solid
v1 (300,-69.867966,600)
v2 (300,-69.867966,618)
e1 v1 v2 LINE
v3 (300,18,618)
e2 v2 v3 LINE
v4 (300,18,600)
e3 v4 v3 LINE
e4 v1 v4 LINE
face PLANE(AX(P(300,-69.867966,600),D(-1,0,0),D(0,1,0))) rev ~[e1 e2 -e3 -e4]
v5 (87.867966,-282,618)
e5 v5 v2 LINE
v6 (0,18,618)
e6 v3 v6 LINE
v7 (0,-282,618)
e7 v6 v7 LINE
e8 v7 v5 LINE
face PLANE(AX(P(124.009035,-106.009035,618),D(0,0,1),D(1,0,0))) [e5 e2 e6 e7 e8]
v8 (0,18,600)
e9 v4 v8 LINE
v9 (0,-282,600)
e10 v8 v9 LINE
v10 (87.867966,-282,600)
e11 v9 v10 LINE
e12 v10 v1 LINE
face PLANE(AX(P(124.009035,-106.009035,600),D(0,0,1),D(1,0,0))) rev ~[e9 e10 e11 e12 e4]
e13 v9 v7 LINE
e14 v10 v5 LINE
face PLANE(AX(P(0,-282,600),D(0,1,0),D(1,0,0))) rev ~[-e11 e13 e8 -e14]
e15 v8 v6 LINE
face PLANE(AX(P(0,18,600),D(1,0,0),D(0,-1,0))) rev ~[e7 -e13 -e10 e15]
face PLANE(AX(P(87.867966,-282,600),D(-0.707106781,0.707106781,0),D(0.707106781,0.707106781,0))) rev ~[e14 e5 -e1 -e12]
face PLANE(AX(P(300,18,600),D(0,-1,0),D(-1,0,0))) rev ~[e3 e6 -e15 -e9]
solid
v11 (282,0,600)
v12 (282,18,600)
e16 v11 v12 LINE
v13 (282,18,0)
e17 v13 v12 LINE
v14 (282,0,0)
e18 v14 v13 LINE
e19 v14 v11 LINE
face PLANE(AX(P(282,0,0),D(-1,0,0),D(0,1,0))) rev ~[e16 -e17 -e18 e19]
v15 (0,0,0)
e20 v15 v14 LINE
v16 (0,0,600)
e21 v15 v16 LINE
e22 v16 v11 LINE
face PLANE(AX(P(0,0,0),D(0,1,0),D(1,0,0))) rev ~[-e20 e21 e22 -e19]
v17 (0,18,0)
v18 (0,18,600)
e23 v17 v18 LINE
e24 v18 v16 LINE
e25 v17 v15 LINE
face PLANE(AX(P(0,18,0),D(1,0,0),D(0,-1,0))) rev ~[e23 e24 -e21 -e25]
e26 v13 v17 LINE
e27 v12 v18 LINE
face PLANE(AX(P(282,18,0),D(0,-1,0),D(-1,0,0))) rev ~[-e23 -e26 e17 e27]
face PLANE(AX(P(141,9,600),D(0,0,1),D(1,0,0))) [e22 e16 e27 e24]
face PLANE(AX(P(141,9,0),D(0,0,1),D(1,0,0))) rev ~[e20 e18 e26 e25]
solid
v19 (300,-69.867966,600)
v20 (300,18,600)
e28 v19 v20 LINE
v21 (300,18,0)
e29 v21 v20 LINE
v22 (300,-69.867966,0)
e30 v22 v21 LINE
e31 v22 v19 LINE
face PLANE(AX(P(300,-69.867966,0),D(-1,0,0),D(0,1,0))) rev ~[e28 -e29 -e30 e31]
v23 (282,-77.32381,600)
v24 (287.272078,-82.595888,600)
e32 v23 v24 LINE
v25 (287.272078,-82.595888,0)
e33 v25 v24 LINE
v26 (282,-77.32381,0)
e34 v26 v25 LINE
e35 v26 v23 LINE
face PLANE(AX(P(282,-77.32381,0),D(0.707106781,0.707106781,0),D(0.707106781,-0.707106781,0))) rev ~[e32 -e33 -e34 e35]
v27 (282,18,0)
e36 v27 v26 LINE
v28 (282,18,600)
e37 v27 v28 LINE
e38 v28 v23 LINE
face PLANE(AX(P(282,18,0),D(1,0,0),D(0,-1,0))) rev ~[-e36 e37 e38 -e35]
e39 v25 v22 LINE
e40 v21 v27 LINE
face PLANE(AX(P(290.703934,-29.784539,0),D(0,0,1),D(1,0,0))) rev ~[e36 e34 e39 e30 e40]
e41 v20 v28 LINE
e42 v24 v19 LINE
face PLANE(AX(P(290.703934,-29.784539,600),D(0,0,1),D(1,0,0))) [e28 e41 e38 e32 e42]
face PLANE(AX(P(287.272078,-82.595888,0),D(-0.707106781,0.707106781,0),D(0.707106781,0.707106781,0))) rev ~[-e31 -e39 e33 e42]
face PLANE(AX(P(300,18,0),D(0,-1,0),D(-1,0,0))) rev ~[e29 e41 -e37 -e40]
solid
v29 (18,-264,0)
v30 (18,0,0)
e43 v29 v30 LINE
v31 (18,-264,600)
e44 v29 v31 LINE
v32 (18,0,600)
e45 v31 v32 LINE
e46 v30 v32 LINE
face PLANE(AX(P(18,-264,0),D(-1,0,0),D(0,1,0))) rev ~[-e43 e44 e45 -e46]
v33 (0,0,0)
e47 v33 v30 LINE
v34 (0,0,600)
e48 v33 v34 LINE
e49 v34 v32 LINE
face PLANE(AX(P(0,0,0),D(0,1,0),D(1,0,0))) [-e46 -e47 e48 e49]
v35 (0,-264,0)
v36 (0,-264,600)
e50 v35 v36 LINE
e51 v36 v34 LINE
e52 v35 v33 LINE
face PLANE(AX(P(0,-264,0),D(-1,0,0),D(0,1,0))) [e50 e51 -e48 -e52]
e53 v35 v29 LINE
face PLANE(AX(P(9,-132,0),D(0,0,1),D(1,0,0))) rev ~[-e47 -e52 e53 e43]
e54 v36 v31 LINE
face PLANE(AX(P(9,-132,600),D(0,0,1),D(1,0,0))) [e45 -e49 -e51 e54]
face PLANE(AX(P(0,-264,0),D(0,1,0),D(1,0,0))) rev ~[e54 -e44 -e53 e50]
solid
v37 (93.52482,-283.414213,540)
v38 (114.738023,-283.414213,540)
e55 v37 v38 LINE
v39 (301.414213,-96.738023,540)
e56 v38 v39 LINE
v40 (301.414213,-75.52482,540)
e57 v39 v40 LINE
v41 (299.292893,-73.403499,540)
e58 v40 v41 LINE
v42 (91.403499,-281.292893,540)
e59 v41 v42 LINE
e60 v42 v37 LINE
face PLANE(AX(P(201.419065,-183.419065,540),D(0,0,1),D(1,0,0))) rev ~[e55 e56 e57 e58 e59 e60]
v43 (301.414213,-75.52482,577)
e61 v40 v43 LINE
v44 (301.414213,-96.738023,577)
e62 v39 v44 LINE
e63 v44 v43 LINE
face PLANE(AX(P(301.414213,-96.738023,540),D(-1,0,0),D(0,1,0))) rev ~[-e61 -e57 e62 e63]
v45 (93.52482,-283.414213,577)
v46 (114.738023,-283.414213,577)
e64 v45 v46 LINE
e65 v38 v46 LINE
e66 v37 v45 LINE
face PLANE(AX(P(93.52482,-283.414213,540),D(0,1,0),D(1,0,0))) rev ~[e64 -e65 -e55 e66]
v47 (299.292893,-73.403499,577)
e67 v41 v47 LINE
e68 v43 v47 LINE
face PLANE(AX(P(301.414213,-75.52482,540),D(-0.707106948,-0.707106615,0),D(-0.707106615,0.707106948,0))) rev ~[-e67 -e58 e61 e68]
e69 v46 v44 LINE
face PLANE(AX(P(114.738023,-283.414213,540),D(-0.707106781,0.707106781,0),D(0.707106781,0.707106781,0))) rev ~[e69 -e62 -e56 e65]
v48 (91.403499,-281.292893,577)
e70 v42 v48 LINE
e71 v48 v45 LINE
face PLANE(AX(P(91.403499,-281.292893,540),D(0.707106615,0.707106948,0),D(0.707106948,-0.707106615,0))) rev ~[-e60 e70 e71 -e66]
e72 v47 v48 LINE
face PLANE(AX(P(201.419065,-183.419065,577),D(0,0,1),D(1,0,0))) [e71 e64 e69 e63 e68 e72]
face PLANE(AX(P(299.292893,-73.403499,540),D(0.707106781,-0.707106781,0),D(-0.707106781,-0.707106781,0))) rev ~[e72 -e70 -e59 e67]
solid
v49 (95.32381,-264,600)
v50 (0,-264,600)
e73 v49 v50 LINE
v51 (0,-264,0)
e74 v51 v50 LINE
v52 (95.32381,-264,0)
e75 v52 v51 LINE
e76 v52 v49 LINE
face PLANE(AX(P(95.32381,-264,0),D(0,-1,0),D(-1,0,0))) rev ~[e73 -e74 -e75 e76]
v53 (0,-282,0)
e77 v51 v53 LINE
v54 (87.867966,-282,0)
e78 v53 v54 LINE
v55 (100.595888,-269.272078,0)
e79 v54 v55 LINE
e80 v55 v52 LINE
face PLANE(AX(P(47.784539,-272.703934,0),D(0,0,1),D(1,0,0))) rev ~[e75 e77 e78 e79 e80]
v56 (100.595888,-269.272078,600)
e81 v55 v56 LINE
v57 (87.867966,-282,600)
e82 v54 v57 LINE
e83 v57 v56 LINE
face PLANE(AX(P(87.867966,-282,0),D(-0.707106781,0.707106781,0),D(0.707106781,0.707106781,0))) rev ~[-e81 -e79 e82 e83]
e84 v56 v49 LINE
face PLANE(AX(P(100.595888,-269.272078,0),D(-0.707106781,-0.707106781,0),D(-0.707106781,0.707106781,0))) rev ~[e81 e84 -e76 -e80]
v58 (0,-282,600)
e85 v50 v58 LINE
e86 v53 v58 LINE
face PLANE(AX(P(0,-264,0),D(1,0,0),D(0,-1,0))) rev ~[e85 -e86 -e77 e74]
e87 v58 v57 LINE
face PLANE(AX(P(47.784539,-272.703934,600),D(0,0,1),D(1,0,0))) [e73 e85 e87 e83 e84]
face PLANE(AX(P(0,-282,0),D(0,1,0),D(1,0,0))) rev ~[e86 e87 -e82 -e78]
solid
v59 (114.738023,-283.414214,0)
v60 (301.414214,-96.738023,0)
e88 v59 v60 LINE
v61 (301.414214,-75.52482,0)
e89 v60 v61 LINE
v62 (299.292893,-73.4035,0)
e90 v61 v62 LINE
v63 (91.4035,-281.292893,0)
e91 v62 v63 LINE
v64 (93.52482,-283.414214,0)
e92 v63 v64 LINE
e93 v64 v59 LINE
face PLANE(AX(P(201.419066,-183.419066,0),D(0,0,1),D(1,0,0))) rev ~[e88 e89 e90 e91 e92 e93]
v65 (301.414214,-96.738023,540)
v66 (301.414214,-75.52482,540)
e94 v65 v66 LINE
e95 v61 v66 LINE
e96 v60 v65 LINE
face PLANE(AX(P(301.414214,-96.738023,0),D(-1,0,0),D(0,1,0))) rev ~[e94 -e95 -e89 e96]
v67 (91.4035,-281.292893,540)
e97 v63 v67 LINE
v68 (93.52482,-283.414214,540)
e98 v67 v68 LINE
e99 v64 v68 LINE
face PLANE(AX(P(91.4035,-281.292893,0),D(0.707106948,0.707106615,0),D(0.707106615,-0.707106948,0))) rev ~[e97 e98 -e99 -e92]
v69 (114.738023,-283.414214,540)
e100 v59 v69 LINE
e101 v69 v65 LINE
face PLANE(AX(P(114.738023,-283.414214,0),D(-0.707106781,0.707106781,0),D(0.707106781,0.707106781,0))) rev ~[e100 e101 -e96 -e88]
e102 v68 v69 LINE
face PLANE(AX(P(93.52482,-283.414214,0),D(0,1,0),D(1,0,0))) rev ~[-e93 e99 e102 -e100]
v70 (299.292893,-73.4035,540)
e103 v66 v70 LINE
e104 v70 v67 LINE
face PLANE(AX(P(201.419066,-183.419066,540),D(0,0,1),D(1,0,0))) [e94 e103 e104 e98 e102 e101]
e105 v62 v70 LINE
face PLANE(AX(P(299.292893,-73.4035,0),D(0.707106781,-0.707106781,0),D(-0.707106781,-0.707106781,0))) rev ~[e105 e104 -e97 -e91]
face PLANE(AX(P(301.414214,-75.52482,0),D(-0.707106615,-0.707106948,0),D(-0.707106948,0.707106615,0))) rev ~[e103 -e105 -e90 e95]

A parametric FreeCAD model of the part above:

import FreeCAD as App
import Part
import Sketcher
from FreeCAD import Vector


def add_polygon(sketch, points):
    """Adds a closed chain of lines whose ends are joined by coincident constraints."""
    first, n = sketch.GeometryCount, len(points)
    for a, b in zip(points, points[1:] + points[:1]):
        sketch.addGeometry(Part.LineSegment(App.Vector(*a, 0), App.Vector(*b, 0)), False)
    for i in range(n):
        sketch.addConstraint(Sketcher.Constraint("Coincident", first + i, 2, first + (i + 1) % n, 1))

doc = App.newDocument("Part")
body = doc.addObject("PartDesign::Body", "Body")

sketch1 = body.newObject("Sketcher::SketchObject", "Sketch")
sketch1.AttachmentSupport = (doc.getObject("XY_Plane"), [""])
sketch1.MapMode = "FlatFace"
add_polygon(sketch1, [(0, 0), (0, -264), (18, -264), (18, 0)])
sketch1.addConstraint([
    Sketcher.Constraint("Vertical", 0),
    Sketcher.Constraint("Horizontal", 1),
    Sketcher.Constraint("Vertical", 2),
    Sketcher.Constraint("Horizontal", 3),
    Sketcher.Constraint("Coincident", 3, 2, -1, 1),
    Sketcher.Constraint("DistanceX", 1, 1, 1, 2, 18.0),
    Sketcher.Constraint("DistanceY", 0, 2, 0, 1, 264.0),
])
pad1 = body.newObject("PartDesign::Pad", "Pad")
pad1.Profile = sketch1
pad1.Length = 600
body2 = doc.addObject("PartDesign::Body", "Body001")

sketch2 = body2.newObject("Sketcher::SketchObject", "Sketch001")
sketch2.AttachmentSupport = (doc.getObject("XY_Plane001"), [""])
sketch2.MapMode = "FlatFace"
add_polygon(sketch2, [(0, 18), (0, 0), (282, 0), (282, 18)])
sketch2.addConstraint([
    Sketcher.Constraint("Vertical", 0),
    Sketcher.Constraint("Horizontal", 1),
    Sketcher.Constraint("Vertical", 2),
    Sketcher.Constraint("Horizontal", 3),
    Sketcher.Constraint("Coincident", 0, 2, -1, 1),
    Sketcher.Constraint("DistanceX", 1, 1, 1, 2, 282.0),
    Sketcher.Constraint("DistanceY", 0, 2, 0, 1, 18.0),
])
pad2 = body2.newObject("PartDesign::Pad", "Pad001")
pad2.Profile = sketch2
pad2.Length = 600
body3 = doc.addObject("PartDesign::Body", "Body002")
body3.AllowCompound = True

sketch3 = body3.newObject("Sketcher::SketchObject", "Sketch002")
sketch3.AttachmentSupport = (doc.getObject("XY_Plane002"), [""])
sketch3.MapMode = "FlatFace"
add_polygon(sketch3, [(0, -264), (0, -282), (88, -282), (101, -269), (95, -264)])
add_polygon(sketch3, [(282, 18), (282, -77), (287, -83), (300, -70), (300, 18)])
sketch3.addConstraint([
    Sketcher.Constraint("Vertical", 0),
    Sketcher.Constraint("Horizontal", 1),
    Sketcher.Constraint("Horizontal", 4),
    Sketcher.Constraint("Vertical", 5),
    Sketcher.Constraint("Vertical", 8),
    Sketcher.Constraint("Horizontal", 9),
    Sketcher.Constraint("PointOnObject", 0, 2, -2),
    Sketcher.Constraint("Perpendicular", 2, 3),
    Sketcher.Constraint("Parallel", 3, 6),
    Sketcher.Constraint("Perpendicular", 6, 7),
    Sketcher.Constraint("Equal", 9, 0),
    Sketcher.Constraint("Equal", 4, 5),
    Sketcher.Constraint("Equal", 1, 8),
    Sketcher.Constraint("Equal", 3, 6),
    Sketcher.Constraint("DistanceX", 9, 2, 9, 1, 18.0),
    Sketcher.Constraint("Distance", 2, 18.0),
    Sketcher.Constraint("DistanceY", 0, 2, -1, 1, 282.0),
    Sketcher.Constraint("DistanceX", -1, 1, 5, 2, 282.0),
    Sketcher.Constraint("DistanceY", -1, 1, 8, 2, 18.0),
    Sketcher.Constraint("DistanceX", 4, 2, 4, 1, 95.32381),
])
pad3 = body3.newObject("PartDesign::Pad", "Pad002")
pad3.Profile = sketch3
pad3.Length = 600
body4 = doc.addObject("PartDesign::Body", "Body003")

sketch4 = body4.newObject("Sketcher::SketchObject", "Sketch003")
sketch4.AttachmentSupport = (doc.getObject("XY_Plane003"), [""])
sketch4.MapMode = "FlatFace"
add_polygon(sketch4, [(93.5, -283.4), (114.7, -283.4), (301.4, -96.7), (301.4, -75.5), (299.3, -73.4), (91.4, -281.3)])
sketch4.addConstraint([
    Sketcher.Constraint("Horizontal", 0),
    Sketcher.Constraint("Vertical", 2),
    Sketcher.Constraint("Perpendicular", 1, 3),
    Sketcher.Constraint("Perpendicular", 3, 4),
    Sketcher.Constraint("Perpendicular", 4, 5),
    Sketcher.Constraint("Equal", 0, 2),
    Sketcher.Constraint("Equal", 3, 5),
    Sketcher.Constraint("Distance", 1, 264.000001),
    Sketcher.Constraint("Distance", 3, 3.0),
    Sketcher.Constraint("Distance", 4, 293.999999),
    Sketcher.Constraint("DistanceY", 3, 2, -1, 1, 73.4035),
    Sketcher.Constraint("DistanceX", -1, 1, 4, 2, 91.4035),
])
pad4 = body4.newObject("PartDesign::Pad", "Pad003")
pad4.Profile = sketch4
pad4.Length = 540
body5 = doc.addObject("PartDesign::Body", "Body004")

sketch5 = body5.newObject("Sketcher::SketchObject", "Sketch004")
sketch5.AttachmentSupport = (doc.getObject("XY_Plane004"), [""])
sketch5.MapMode = "FlatFace"
sketch5.AttachmentOffset = App.Placement(Vector(0, 0, 600), App.Rotation())
add_polygon(sketch5, [(0, -282), (88, -282), (300, -70), (300, 18), (0, 18)])
sketch5.addConstraint([
    Sketcher.Constraint("Horizontal", 0),
    Sketcher.Constraint("Vertical", 2),
    Sketcher.Constraint("Horizontal", 3),
    Sketcher.Constraint("Vertical", 4),
    Sketcher.Constraint("PointOnObject", 3, 2, -2),
    Sketcher.Constraint("Equal", 0, 2),
    Sketcher.Constraint("Equal", 3, 4),
    Sketcher.Constraint("DistanceX", 3, 2, 3, 1, 300.0),
    Sketcher.Constraint("Distance", 1, 299.999999),
    Sketcher.Constraint("DistanceY", 0, 2, -1, 1, 282.0),
])
pad5 = body5.newObject("PartDesign::Pad", "Pad004")
pad5.Profile = sketch5
pad5.Length = 18
body6 = doc.addObject("PartDesign::Body", "Body005")

sketch6 = body6.newObject("Sketcher::SketchObject", "Sketch005")
sketch6.AttachmentSupport = (doc.getObject("XY_Plane005"), [""])
sketch6.MapMode = "FlatFace"
sketch6.AttachmentOffset = App.Placement(Vector(0, 0, 540), App.Rotation())
add_polygon(sketch6, [(91.4, -281.3), (93.5, -283.4), (114.7, -283.4), (301.4, -96.7), (301.4, -75.5), (299.3, -73.4)])
sketch6.addConstraint([
    Sketcher.Constraint("Horizontal", 1),
    Sketcher.Constraint("Vertical", 3),
    Sketcher.Constraint("Perpendicular", 0, 2),
    Sketcher.Constraint("Perpendicular", 2, 4),
    Sketcher.Constraint("Perpendicular", 4, 5),
    Sketcher.Constraint("Equal", 1, 3),
    Sketcher.Constraint("Equal", 0, 4),
    Sketcher.Constraint("Distance", 0, 3.0),
    Sketcher.Constraint("Distance", 2, 264.0),
    Sketcher.Constraint("Distance", 5, 294.0),
    Sketcher.Constraint("DistanceY", 4, 2, -1, 1, 73.403499),
    Sketcher.Constraint("DistanceX", -1, 1, 5, 2, 91.403499),
])
pad6 = body6.newObject("PartDesign::Pad", "Pad005")
pad6.Profile = sketch6
pad6.Length = 37

doc.recompute()
